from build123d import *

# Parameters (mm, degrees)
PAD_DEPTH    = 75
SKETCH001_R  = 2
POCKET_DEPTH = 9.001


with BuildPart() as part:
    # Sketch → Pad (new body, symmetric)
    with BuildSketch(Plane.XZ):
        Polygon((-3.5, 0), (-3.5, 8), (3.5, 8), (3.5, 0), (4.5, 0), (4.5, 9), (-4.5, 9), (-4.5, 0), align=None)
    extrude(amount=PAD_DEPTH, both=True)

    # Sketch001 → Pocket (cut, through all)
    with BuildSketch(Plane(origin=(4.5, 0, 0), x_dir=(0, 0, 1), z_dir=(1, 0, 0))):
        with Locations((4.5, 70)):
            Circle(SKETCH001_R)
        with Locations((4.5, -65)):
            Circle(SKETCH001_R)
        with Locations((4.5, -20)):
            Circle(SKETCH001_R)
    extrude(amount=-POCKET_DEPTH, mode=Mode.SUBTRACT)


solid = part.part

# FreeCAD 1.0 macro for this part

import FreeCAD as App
import Part
import Sketcher
from FreeCAD import Vector
Q = App.Units.Quantity

doc = App.newDocument("Part")
body = doc.addObject("PartDesign::Body", "Body")

# Sketch on XZ plane
sketch1 = body.newObject("Sketcher::SketchObject", "Sketch")
sketch1.AttachmentSupport = (doc.getObject("XZ_Plane"), [""])
sketch1.MapMode = "FlatFace"
sketch1.addGeometry([
    Part.LineSegment(Vector(-3.5, 0, 0), Vector(-3.5, 8, 0)),  # 0
    Part.LineSegment(Vector(-3.5, 8, 0), Vector(3.5, 8, 0)),  # 1
    Part.LineSegment(Vector(3.5, 8, 0), Vector(3.5, 0, 0)),  # 2
    Part.LineSegment(Vector(3.5, 0, 0), Vector(4.5, 0, 0)),  # 3
    Part.LineSegment(Vector(4.5, 0, 0), Vector(4.5, 9, 0)),  # 4
    Part.LineSegment(Vector(4.5, 9, 0), Vector(-4.5, 9, 0)),  # 5
    Part.LineSegment(Vector(-4.5, 9, 0), Vector(-4.5, 0, 0)),  # 6
    Part.LineSegment(Vector(-4.5, 0, 0), Vector(-3.5, 0, 0)),  # 7
], False)
sketch1.addConstraint([
    Sketcher.Constraint("Coincident", 0, 2, 1, 1),
    Sketcher.Constraint("Coincident", 1, 2, 2, 1),
    Sketcher.Constraint("Coincident", 2, 2, 3, 1),
    Sketcher.Constraint("Coincident", 3, 2, 4, 1),
    Sketcher.Constraint("Coincident", 4, 2, 5, 1),
    Sketcher.Constraint("Coincident", 5, 2, 6, 1),
    Sketcher.Constraint("Coincident", 6, 2, 7, 1),
    Sketcher.Constraint("Coincident", 7, 2, 0, 1),
    Sketcher.Constraint("Vertical", 0),
    Sketcher.Constraint("Horizontal", 1),
    Sketcher.Constraint("Vertical", 2),
    Sketcher.Constraint("Horizontal", 3),
    Sketcher.Constraint("Vertical", 4),
    Sketcher.Constraint("Horizontal", 5),
    Sketcher.Constraint("Vertical", 6),
    Sketcher.Constraint("Horizontal", 7),
    Sketcher.Constraint("Symmetric", 3, 2, 6, 2, -1, 1),
    Sketcher.Constraint("Symmetric", 2, 2, 7, 2, -2),
    Sketcher.Constraint("Equal", 5, 4),
    Sketcher.Constraint("DistanceX", 1, 1, 1, 2, Q("7 mm")),
    Sketcher.Constraint("DistanceX", 3, 1, 3, 2, Q("1 mm")),
    Sketcher.Constraint("DistanceY", 0, 1, 0, 2, Q("8 mm")),
])
pad1 = body.newObject("PartDesign::Pad", "Pad")
pad1.Profile = sketch1
pad1.Length = 150
pad1.Midplane = True

# Sketch on YZ plane
sketch2 = body.newObject("Sketcher::SketchObject", "Sketch001")
sketch2.AttachmentSupport = (doc.getObject("YZ_Plane"), [""])
sketch2.MapMode = "FlatFace"
sketch2.AttachmentOffset = App.Placement(Vector(0, 0, 4.5), App.Rotation())
sketch2.addGeometry([
    Part.Circle(Vector(-70, 4.5, 0), Vector(0, 0, 1), 2),
    Part.Circle(Vector(65, 4.5, 0), Vector(0, 0, 1), 2),
    Part.Circle(Vector(20, 4.5, 0), Vector(0, 0, 1), 2),
], False)
sketch2.addConstraint([
    Sketcher.Constraint("Equal", 0, 1),
    Sketcher.Constraint("Equal", 1, 2),
    Sketcher.Constraint("Horizontal", 0, 3, 1, 3),
    Sketcher.Constraint("Horizontal", 1, 3, 2, 3),
    Sketcher.Constraint("Diameter", 0, Q("4 mm")),
    Sketcher.Constraint("DistanceX", 0, 3, -1, 1, Q("70 mm")),
    Sketcher.Constraint("DistanceX", -1, 1, 1, 3, Q("65 mm")),
    Sketcher.Constraint("DistanceX", -1, 1, 2, 3, Q("20 mm")),
    Sketcher.Constraint("DistanceY", -1, 1, 0, 3, Q("4.5 mm")),
])
pocket1 = body.newObject("PartDesign::Pocket", "Pocket")
pocket1.Profile = sketch2
pocket1.Type = "ThroughAll"

doc.recompute()
